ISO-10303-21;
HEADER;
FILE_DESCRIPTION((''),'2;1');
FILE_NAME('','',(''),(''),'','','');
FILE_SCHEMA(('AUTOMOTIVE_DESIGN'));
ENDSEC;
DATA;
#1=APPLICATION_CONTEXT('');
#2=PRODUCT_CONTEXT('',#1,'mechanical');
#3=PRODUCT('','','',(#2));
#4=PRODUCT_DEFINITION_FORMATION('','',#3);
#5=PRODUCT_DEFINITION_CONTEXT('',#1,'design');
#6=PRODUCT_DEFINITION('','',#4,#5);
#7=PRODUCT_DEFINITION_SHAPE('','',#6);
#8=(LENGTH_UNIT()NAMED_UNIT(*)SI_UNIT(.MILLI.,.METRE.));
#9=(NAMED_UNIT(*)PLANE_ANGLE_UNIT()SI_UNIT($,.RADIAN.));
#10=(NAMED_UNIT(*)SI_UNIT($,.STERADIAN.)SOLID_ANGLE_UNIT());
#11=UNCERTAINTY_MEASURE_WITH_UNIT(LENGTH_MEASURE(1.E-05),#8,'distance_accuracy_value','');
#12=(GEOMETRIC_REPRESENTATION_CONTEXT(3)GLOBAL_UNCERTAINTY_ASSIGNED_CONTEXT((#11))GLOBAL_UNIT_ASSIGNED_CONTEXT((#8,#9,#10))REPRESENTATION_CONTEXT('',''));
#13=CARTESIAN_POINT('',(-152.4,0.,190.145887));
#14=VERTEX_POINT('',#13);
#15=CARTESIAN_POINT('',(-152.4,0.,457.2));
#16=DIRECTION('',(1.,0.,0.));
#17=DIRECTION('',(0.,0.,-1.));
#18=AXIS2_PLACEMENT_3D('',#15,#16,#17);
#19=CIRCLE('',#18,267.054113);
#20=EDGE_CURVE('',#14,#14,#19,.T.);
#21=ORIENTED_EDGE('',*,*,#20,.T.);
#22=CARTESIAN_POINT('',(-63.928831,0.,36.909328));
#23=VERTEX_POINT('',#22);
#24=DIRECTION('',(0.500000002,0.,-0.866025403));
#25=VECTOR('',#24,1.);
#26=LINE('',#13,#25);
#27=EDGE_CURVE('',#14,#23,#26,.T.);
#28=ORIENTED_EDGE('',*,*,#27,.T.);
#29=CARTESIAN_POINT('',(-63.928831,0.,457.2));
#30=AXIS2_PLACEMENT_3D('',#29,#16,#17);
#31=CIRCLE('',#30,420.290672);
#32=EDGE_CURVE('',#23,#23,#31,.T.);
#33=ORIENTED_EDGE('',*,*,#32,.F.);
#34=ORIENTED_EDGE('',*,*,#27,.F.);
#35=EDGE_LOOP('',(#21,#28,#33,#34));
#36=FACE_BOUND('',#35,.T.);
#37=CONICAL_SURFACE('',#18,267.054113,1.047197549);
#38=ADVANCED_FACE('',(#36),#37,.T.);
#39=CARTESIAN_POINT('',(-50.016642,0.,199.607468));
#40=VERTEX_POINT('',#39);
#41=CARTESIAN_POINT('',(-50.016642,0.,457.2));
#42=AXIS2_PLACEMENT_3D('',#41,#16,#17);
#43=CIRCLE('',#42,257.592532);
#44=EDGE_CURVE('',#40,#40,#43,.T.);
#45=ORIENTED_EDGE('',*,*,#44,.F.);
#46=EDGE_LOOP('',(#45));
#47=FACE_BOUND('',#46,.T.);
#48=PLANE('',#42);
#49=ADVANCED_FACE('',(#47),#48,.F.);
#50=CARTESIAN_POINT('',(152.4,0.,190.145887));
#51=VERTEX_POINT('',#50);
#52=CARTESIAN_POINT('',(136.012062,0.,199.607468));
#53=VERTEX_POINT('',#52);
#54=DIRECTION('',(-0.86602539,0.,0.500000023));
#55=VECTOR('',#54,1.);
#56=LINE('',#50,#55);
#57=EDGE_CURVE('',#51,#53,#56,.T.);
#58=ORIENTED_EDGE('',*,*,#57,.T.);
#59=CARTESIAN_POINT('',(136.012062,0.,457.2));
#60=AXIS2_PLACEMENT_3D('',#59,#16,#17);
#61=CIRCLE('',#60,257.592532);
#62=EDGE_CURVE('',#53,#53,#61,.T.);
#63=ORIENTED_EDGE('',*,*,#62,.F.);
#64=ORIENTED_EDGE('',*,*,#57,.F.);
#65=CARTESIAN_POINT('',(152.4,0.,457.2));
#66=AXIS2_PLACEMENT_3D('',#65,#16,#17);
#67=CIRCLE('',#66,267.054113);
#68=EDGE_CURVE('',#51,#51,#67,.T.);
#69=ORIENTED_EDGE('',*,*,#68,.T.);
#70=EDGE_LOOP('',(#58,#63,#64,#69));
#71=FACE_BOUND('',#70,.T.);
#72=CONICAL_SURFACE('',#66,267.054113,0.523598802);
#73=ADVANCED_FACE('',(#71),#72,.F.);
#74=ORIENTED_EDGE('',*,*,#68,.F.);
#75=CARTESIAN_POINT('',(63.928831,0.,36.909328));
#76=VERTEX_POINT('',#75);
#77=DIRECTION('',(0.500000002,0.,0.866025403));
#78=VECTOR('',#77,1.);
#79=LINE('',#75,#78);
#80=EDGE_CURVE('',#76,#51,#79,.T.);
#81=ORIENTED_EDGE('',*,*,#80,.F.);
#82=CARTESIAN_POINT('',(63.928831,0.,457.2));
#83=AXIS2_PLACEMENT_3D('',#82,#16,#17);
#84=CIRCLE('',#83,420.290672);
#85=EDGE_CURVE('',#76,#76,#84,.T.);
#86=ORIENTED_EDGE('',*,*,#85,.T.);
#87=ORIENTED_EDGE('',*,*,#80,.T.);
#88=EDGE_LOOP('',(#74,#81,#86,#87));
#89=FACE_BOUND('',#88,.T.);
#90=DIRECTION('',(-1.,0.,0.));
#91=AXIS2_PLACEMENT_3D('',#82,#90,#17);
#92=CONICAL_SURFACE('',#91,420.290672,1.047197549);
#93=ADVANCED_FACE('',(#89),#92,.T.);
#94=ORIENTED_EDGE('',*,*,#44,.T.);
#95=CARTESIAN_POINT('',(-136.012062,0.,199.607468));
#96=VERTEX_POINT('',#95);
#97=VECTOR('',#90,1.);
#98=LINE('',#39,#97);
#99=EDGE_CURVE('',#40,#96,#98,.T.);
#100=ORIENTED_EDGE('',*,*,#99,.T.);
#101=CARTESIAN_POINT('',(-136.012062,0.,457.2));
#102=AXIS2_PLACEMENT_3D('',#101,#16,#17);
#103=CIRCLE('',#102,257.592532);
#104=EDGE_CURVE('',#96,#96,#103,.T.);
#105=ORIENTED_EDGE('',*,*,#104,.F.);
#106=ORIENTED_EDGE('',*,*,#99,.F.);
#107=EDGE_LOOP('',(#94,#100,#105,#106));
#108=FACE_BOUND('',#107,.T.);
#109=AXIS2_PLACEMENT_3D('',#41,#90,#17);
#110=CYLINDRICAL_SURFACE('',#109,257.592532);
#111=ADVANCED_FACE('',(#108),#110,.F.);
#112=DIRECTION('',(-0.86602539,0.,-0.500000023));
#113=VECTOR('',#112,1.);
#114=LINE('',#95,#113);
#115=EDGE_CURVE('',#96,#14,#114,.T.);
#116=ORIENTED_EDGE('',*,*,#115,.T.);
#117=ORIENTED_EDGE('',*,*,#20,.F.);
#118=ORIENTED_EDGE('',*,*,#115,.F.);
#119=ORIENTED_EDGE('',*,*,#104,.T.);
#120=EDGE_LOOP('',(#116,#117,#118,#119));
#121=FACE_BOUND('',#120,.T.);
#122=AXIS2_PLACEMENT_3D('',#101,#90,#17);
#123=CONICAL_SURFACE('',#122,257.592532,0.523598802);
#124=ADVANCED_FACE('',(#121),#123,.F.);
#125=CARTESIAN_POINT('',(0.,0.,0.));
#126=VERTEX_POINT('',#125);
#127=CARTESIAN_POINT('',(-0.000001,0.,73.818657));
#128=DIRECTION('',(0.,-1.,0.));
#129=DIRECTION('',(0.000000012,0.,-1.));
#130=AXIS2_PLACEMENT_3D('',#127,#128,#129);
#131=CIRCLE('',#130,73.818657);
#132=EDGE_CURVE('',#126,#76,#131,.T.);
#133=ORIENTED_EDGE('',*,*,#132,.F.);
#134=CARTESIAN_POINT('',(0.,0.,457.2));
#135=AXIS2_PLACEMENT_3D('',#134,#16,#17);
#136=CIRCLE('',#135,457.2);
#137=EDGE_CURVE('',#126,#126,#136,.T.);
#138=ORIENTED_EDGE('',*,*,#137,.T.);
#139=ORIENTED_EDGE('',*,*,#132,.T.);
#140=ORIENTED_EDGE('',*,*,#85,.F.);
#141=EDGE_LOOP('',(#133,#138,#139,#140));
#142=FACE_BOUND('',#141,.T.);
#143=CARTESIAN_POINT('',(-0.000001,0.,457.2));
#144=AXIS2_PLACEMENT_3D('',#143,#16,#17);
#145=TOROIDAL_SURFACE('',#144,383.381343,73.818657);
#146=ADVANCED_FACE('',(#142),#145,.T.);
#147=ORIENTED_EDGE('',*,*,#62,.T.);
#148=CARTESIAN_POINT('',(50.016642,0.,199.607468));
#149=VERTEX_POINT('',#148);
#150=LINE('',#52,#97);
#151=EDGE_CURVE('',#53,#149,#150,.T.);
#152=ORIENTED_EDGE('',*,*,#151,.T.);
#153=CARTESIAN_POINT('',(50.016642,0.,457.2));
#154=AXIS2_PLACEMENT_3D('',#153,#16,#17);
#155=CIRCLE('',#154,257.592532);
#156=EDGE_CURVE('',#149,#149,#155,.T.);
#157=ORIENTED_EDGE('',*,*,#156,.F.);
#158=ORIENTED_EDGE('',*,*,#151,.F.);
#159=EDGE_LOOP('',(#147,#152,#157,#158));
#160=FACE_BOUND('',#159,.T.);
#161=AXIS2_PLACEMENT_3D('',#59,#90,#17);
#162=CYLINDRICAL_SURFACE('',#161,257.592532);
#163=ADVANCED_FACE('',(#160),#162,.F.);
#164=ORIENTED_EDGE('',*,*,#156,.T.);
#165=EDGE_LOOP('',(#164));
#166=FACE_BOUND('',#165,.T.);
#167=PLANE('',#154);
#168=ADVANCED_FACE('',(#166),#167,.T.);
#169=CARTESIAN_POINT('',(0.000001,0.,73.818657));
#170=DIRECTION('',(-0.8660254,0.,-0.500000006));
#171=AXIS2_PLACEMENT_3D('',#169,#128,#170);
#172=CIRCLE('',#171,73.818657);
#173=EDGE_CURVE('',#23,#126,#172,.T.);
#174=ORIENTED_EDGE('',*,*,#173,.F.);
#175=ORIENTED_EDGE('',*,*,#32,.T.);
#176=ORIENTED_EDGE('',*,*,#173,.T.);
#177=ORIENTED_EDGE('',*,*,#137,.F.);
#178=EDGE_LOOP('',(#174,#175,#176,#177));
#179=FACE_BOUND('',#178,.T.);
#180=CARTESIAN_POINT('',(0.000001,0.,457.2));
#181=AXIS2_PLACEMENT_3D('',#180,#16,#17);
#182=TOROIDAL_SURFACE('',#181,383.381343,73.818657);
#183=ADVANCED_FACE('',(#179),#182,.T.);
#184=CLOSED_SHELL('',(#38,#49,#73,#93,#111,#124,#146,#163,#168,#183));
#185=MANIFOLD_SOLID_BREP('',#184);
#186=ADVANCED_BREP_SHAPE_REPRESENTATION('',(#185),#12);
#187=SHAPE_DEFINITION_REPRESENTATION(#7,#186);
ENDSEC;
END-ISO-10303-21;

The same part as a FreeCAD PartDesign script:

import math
import FreeCAD as App
import Part
import Sketcher
from FreeCAD import Vector
Q = App.Units.Quantity

doc = App.newDocument("Part")
params = doc.addObject("Spreadsheet::Sheet", "Params")
for row, (alias, value) in enumerate([
    ("sketch1_width", "304.8 mm"),
    ("revolution_angle", "360 deg"),
], start=1):
    params.set(f"A{row}", alias)
    params.set(f"B{row}", "=" + value)
    params.setAlias(f"B{row}", alias)

body = doc.addObject("PartDesign::Body", "Body")

# Sketch on XZ plane
sketch1 = body.newObject("Sketcher::SketchObject", "Sketch")
sketch1.AttachmentSupport = (doc.getObject("XZ_Plane"), [""])
sketch1.MapMode = "FlatFace"
sketch1.addGeometry([
    Part.ArcOfCircle(Part.Circle(Vector(0, 74, 0), Vector(0, 0, 1), 74), math.radians(-150), math.radians(-90)),  # 0
    Part.ArcOfCircle(Part.Circle(Vector(0, 74, 0), Vector(0, 0, 1), 74), math.radians(-90), math.radians(-30)),  # 1
    Part.LineSegment(Vector(64, 37, 0), Vector(152, 190, 0)),  # 2
    Part.LineSegment(Vector(152, 190, 0), Vector(136, 200, 0)),  # 3
    Part.LineSegment(Vector(136, 200, 0), Vector(50, 200, 0)),  # 4
    Part.LineSegment(Vector(50, 200, 0), Vector(50, 457, 0)),  # 5
    Part.LineSegment(Vector(50, 457, 0), Vector(-50, 457, 0)),  # 6
    Part.LineSegment(Vector(-50, 457, 0), Vector(-50, 200, 0)),  # 7
    Part.LineSegment(Vector(-50, 200, 0), Vector(-136, 200, 0)),  # 8
    Part.LineSegment(Vector(-136, 200, 0), Vector(-152, 190, 0)),  # 9
    Part.LineSegment(Vector(-152, 190, 0), Vector(-64, 37, 0)),  # 10
], False)
sketch1.addGeometry(Part.LineSegment(Vector(-152, 457, 0), Vector(152, 457, 0)), True)  # axis
sketch1.addConstraint([
    Sketcher.Constraint("Tangent", 0, 2, 1, 1),
    Sketcher.Constraint("Tangent", 1, 2, 2, 1),
    Sketcher.Constraint("Coincident", 2, 2, 3, 1),
    Sketcher.Constraint("Coincident", 3, 2, 4, 1),
    Sketcher.Constraint("Coincident", 4, 2, 5, 1),
    Sketcher.Constraint("Coincident", 5, 2, 6, 1),
    Sketcher.Constraint("Coincident", 6, 2, 7, 1),
    Sketcher.Constraint("Coincident", 7, 2, 8, 1),
    Sketcher.Constraint("Coincident", 8, 2, 9, 1),
    Sketcher.Constraint("Coincident", 9, 2, 10, 1),
    Sketcher.Constraint("Tangent", 10, 2, 0, 1),
    Sketcher.Constraint("Horizontal", 4),
    Sketcher.Constraint("Vertical", 5),
    Sketcher.Constraint("Horizontal", 6),
    Sketcher.Constraint("Vertical", 7),
    Sketcher.Constraint("Horizontal", 8),
    Sketcher.Constraint("Horizontal", 11),
    Sketcher.Constraint("Coincident", 0, 2, -1, 1),
    Sketcher.Constraint("Equal", 0, 1),
    Sketcher.Constraint("Symmetric", 4, 2, 7, 2, -2),
    Sketcher.Constraint("Symmetric", 2, 2, 9, 2, -2),
    Sketcher.Constraint("PointOnObject", 0, 3, -2),
    Sketcher.Constraint("Perpendicular", 2, 3),
    Sketcher.Constraint("Perpendicular", 9, 10),
    Sketcher.Constraint("Horizontal", 6, 2, 11, 1),
    Sketcher.Constraint("Vertical", 9, 2, 11, 1),
    Sketcher.Constraint("Vertical", 2, 2, 11, 2),
    Sketcher.Constraint("Angle", 2, Q("60 deg")),
    Sketcher.Constraint("DistanceX", 11, 1, 11, 2, Q("304.8 mm")),
    Sketcher.Constraint("DistanceY", -1, 1, 5, 2, Q("457.2 mm")),
    Sketcher.Constraint("Radius", 0, Q("73.818657 mm")),
    Sketcher.Constraint("DistanceX", 4, 2, 4, 1, Q("85.99542 mm")),
    Sketcher.Constraint("DistanceY", 5, 1, 5, 2, Q("257.592532 mm")),
])
sketch1.setExpression("Constraints[28]", "Params.sketch1_width")
revolution = body.newObject("PartDesign::Revolution", "Revolution")
revolution.Profile = sketch1
revolution.ReferenceAxis = (sketch1, ["Axis0"])
revolution.setExpression("Angle", "Params.revolution_angle")

doc.recompute()
